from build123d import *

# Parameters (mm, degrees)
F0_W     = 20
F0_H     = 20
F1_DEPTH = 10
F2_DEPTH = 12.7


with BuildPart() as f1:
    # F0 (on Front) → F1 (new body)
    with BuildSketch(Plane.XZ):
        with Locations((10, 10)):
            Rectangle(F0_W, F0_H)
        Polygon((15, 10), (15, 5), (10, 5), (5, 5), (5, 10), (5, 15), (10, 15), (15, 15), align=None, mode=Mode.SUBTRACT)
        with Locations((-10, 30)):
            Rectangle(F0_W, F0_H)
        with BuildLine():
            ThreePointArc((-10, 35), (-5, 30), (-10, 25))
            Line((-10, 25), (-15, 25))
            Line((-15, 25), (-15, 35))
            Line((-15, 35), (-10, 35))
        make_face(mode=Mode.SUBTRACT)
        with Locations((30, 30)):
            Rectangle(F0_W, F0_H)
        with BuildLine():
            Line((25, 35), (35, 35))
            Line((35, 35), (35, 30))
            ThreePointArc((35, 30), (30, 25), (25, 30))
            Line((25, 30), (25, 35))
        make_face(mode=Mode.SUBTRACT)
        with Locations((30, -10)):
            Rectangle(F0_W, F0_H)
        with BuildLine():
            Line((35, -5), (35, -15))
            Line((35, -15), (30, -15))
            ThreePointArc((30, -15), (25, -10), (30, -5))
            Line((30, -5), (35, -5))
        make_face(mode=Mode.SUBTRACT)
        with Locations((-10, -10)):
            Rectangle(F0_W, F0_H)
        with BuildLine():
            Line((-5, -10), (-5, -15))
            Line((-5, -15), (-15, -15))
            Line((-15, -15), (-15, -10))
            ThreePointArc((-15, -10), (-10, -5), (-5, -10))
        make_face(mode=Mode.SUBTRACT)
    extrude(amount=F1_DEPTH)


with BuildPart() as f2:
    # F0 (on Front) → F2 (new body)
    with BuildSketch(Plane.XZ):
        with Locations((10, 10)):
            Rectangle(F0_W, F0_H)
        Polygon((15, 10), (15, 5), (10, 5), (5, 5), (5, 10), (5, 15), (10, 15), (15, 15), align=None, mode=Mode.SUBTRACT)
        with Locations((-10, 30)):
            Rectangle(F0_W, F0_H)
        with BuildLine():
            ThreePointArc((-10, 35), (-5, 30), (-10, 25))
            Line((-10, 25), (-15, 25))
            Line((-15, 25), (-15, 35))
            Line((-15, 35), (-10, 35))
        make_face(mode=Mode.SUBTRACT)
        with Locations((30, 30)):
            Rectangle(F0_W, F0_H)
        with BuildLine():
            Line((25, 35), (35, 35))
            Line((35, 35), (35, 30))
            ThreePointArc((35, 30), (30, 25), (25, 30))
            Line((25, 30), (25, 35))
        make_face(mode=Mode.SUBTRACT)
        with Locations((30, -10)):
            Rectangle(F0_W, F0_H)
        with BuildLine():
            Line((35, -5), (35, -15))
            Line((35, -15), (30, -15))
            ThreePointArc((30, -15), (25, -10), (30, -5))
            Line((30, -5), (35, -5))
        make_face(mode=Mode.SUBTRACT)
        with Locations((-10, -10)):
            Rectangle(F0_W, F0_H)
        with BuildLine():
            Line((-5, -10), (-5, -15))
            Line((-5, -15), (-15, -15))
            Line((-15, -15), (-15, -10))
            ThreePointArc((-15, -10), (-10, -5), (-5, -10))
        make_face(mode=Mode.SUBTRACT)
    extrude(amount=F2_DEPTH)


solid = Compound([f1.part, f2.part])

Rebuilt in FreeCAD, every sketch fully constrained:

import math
import FreeCAD as App
import Part
import Sketcher
Q = App.Units.Quantity

doc = App.newDocument("Part")
body = doc.addObject("PartDesign::Body", "Body")
body.AllowCompound = True

# Sketch on XZ plane
sketch1 = body.newObject("Sketcher::SketchObject", "Sketch")
sketch1.AttachmentSupport = (doc.getObject("XZ_Plane"), [""])
sketch1.MapMode = "FlatFace"
sketch1.addGeometry([
    Part.LineSegment(App.Vector(0, 20, 0), App.Vector(0, 0, 0)),  # 0
    Part.LineSegment(App.Vector(0, 0, 0), App.Vector(20, 0, 0)),  # 1
    Part.LineSegment(App.Vector(20, 0, 0), App.Vector(20, 20, 0)),  # 2
    Part.LineSegment(App.Vector(20, 20, 0), App.Vector(0, 20, 0)),  # 3
    Part.LineSegment(App.Vector(15, 15, 0), App.Vector(15, 5, 0)),  # 4
    Part.LineSegment(App.Vector(15, 5, 0), App.Vector(5, 5, 0)),  # 5
    Part.LineSegment(App.Vector(5, 5, 0), App.Vector(5, 15, 0)),  # 6
    Part.LineSegment(App.Vector(5, 15, 0), App.Vector(15, 15, 0)),  # 7
    Part.LineSegment(App.Vector(-20, 40, 0), App.Vector(-20, 20, 0)),  # 8
    Part.LineSegment(App.Vector(-20, 20, 0), App.Vector(0, 20, 0)),  # 9
    Part.LineSegment(App.Vector(0, 20, 0), App.Vector(0, 40, 0)),  # 10
    Part.LineSegment(App.Vector(0, 40, 0), App.Vector(-20, 40, 0)),  # 11
    Part.LineSegment(App.Vector(-15, 35, 0), App.Vector(-10, 35, 0)),  # 12
    Part.ArcOfCircle(Part.Circle(App.Vector(-10, 30, 0), App.Vector(0, 0, 1), 5), math.radians(-90), math.radians(90)),  # 13
    Part.LineSegment(App.Vector(-10, 25, 0), App.Vector(-15, 25, 0)),  # 14
    Part.LineSegment(App.Vector(-15, 25, 0), App.Vector(-15, 35, 0)),  # 15
    Part.LineSegment(App.Vector(20, 40, 0), App.Vector(20, 20, 0)),  # 16
    Part.LineSegment(App.Vector(20, 20, 0), App.Vector(40, 20, 0)),  # 17
    Part.LineSegment(App.Vector(40, 20, 0), App.Vector(40, 40, 0)),  # 18
    Part.LineSegment(App.Vector(40, 40, 0), App.Vector(20, 40, 0)),  # 19
    Part.LineSegment(App.Vector(25, 30, 0), App.Vector(25, 35, 0)),  # 20
    Part.LineSegment(App.Vector(25, 35, 0), App.Vector(35, 35, 0)),  # 21
    Part.LineSegment(App.Vector(35, 35, 0), App.Vector(35, 30, 0)),  # 22
    Part.ArcOfCircle(Part.Circle(App.Vector(30, 30, 0), App.Vector(0, 0, 1), 5), math.radians(180), math.radians(360)),  # 23
    Part.LineSegment(App.Vector(20, 0, 0), App.Vector(20, -20, 0)),  # 24
    Part.LineSegment(App.Vector(20, -20, 0), App.Vector(40, -20, 0)),  # 25
    Part.LineSegment(App.Vector(40, -20, 0), App.Vector(40, 0, 0)),  # 26
    Part.LineSegment(App.Vector(40, 0, 0), App.Vector(20, 0, 0)),  # 27
    Part.LineSegment(App.Vector(30, -5, 0), App.Vector(35, -5, 0)),  # 28
    Part.LineSegment(App.Vector(35, -5, 0), App.Vector(35, -15, 0)),  # 29
    Part.LineSegment(App.Vector(35, -15, 0), App.Vector(30, -15, 0)),  # 30
    Part.ArcOfCircle(Part.Circle(App.Vector(30, -10, 0), App.Vector(0, 0, 1), 5), math.radians(90), math.radians(270)),  # 31
    Part.LineSegment(App.Vector(-20, 0, 0), App.Vector(-20, -20, 0)),  # 32
    Part.LineSegment(App.Vector(-20, -20, 0), App.Vector(0, -20, 0)),  # 33
    Part.LineSegment(App.Vector(0, -20, 0), App.Vector(0, 0, 0)),  # 34
    Part.LineSegment(App.Vector(0, 0, 0), App.Vector(-20, 0, 0)),  # 35
    Part.ArcOfCircle(Part.Circle(App.Vector(-10, -10, 0), App.Vector(0, 0, 1), 5), math.radians(0), math.radians(180)),  # 36
    Part.LineSegment(App.Vector(-5, -10, 0), App.Vector(-5, -15, 0)),  # 37
    Part.LineSegment(App.Vector(-5, -15, 0), App.Vector(-15, -15, 0)),  # 38
    Part.LineSegment(App.Vector(-15, -15, 0), App.Vector(-15, -10, 0)),  # 39
], False)
sketch1.addConstraint([
    Sketcher.Constraint("Coincident", 0, 2, 1, 1),
    Sketcher.Constraint("Coincident", 1, 2, 2, 1),
    Sketcher.Constraint("Coincident", 2, 2, 3, 1),
    Sketcher.Constraint("Coincident", 3, 2, 0, 1),
    Sketcher.Constraint("Coincident", 4, 2, 5, 1),
    Sketcher.Constraint("Coincident", 5, 2, 6, 1),
    Sketcher.Constraint("Coincident", 6, 2, 7, 1),
    Sketcher.Constraint("Coincident", 7, 2, 4, 1),
    Sketcher.Constraint("Coincident", 8, 2, 9, 1),
    Sketcher.Constraint("Coincident", 9, 2, 10, 1),
    Sketcher.Constraint("Coincident", 10, 2, 11, 1),
    Sketcher.Constraint("Coincident", 11, 2, 8, 1),
    Sketcher.Constraint("Tangent", 12, 2, 13, 2),
    Sketcher.Constraint("Tangent", 13, 1, 14, 1),
    Sketcher.Constraint("Coincident", 14, 2, 15, 1),
    Sketcher.Constraint("Coincident", 15, 2, 12, 1),
    Sketcher.Constraint("Coincident", 16, 2, 17, 1),
    Sketcher.Constraint("Coincident", 17, 2, 18, 1),
    Sketcher.Constraint("Coincident", 18, 2, 19, 1),
    Sketcher.Constraint("Coincident", 19, 2, 16, 1),
    Sketcher.Constraint("Coincident", 20, 2, 21, 1),
    Sketcher.Constraint("Coincident", 21, 2, 22, 1),
    Sketcher.Constraint("Tangent", 22, 2, 23, 2),
    Sketcher.Constraint("Tangent", 23, 1, 20, 1),
    Sketcher.Constraint("Coincident", 24, 2, 25, 1),
    Sketcher.Constraint("Coincident", 25, 2, 26, 1),
    Sketcher.Constraint("Coincident", 26, 2, 27, 1),
    Sketcher.Constraint("Coincident", 27, 2, 24, 1),
    Sketcher.Constraint("Coincident", 28, 2, 29, 1),
    Sketcher.Constraint("Coincident", 29, 2, 30, 1),
    Sketcher.Constraint("Tangent", 30, 2, 31, 2),
    Sketcher.Constraint("Tangent", 31, 1, 28, 1),
    Sketcher.Constraint("Coincident", 32, 2, 33, 1),
    Sketcher.Constraint("Coincident", 33, 2, 34, 1),
    Sketcher.Constraint("Coincident", 34, 2, 35, 1),
    Sketcher.Constraint("Coincident", 35, 2, 32, 1),
    Sketcher.Constraint("Tangent", 36, 1, 37, 1),
    Sketcher.Constraint("Coincident", 37, 2, 38, 1),
    Sketcher.Constraint("Coincident", 38, 2, 39, 1),
    Sketcher.Constraint("Tangent", 39, 2, 36, 2),
    Sketcher.Constraint("Vertical", 0),
    Sketcher.Constraint("Horizontal", 1),
    Sketcher.Constraint("Vertical", 2),
    Sketcher.Constraint("Horizontal", 3),
    Sketcher.Constraint("Vertical", 4),
    Sketcher.Constraint("Horizontal", 5),
    Sketcher.Constraint("Vertical", 6),
    Sketcher.Constraint("Horizontal", 7),
    Sketcher.Constraint("Vertical", 8),
    Sketcher.Constraint("Horizontal", 9),
    Sketcher.Constraint("Vertical", 10),
    Sketcher.Constraint("Horizontal", 11),
    Sketcher.Constraint("Horizontal", 12),
    Sketcher.Constraint("Horizontal", 14),
    Sketcher.Constraint("Vertical", 15),
    Sketcher.Constraint("Vertical", 16),
    Sketcher.Constraint("Horizontal", 17),
    Sketcher.Constraint("Vertical", 18),
    Sketcher.Constraint("Horizontal", 19),
    Sketcher.Constraint("Vertical", 20),
    Sketcher.Constraint("Horizontal", 21),
    Sketcher.Constraint("Vertical", 22),
    Sketcher.Constraint("Vertical", 24),
    Sketcher.Constraint("Horizontal", 25),
    Sketcher.Constraint("Vertical", 26),
    Sketcher.Constraint("Horizontal", 27),
    Sketcher.Constraint("Horizontal", 28),
    Sketcher.Constraint("Vertical", 29),
    Sketcher.Constraint("Horizontal", 30),
    Sketcher.Constraint("Vertical", 32),
    Sketcher.Constraint("Horizontal", 33),
    Sketcher.Constraint("Vertical", 34),
    Sketcher.Constraint("Horizontal", 35),
    Sketcher.Constraint("Vertical", 37),
    Sketcher.Constraint("Horizontal", 38),
    Sketcher.Constraint("Vertical", 39),
    Sketcher.Constraint("Coincident", 0, 2, -1, 1),
    Sketcher.Constraint("Coincident", 34, 2, -1, 1),
    Sketcher.Constraint("Coincident", 9, 2, 3, 2),
    Sketcher.Constraint("Coincident", 16, 2, 2, 2),
    Sketcher.Constraint("Coincident", 27, 2, 1, 2),
    Sketcher.Constraint("Equal", 13, 23),
    Sketcher.Constraint("Equal", 23, 31),
    Sketcher.Constraint("Equal", 31, 36),
    Sketcher.Constraint("Symmetric", 8, 2, 24, 2, -1, 1),
    Sketcher.Constraint("Symmetric", 2, 2, 32, 2, -1, 1),
    Sketcher.Constraint("Symmetric", 6, 2, 37, 2, -1, 1),
    Sketcher.Constraint("Horizontal", 13, 3, 23, 3),
    Sketcher.Constraint("Horizontal", 31, 3, 36, 3),
    Sketcher.Constraint("Horizontal", 11, 2, 18, 2),
    Sketcher.Constraint("Horizontal", 15, 2, 20, 2),
    Sketcher.Constraint("Horizontal", 30, 2, 37, 2),
    Sketcher.Constraint("Vertical", 23, 3, 31, 3),
    Sketcher.Constraint("Vertical", 13, 3, 36, 3),
    Sketcher.Constraint("Vertical", 18, 2, 25, 2),
    Sketcher.Constraint("Vertical", 22, 2, 28, 2),
    Sketcher.Constraint("Vertical", 15, 2, 38, 2),
    Sketcher.Constraint("Equal", 11, 17),
    Sketcher.Constraint("Equal", 7, 21),
    Sketcher.Constraint("Equal", 35, 0),
    Sketcher.Constraint("Equal", 38, 4),
    Sketcher.Constraint("Equal", 2, 8),
    Sketcher.Constraint("Radius", 13, Q("5 mm")),
    Sketcher.Constraint("DistanceX", 1, 1, 1, 2, Q("20 mm")),
    Sketcher.Constraint("DistanceX", 13, 3, -1, 1, Q("10 mm")),
    Sketcher.Constraint("DistanceY", -1, 1, 13, 3, Q("30 mm")),
    Sketcher.Constraint("DistanceX", -1, 1, 23, 3, Q("30 mm")),
    Sketcher.Constraint("DistanceY", 31, 3, -1, 1, Q("10 mm")),
])
pad1 = body.newObject("PartDesign::Pad", "Pad")
pad1.Profile = sketch1
pad1.Length = 10
body2 = doc.addObject("PartDesign::Body", "Body001")
body2.AllowCompound = True

# Sketch on XZ plane
sketch2 = body2.newObject("Sketcher::SketchObject", "Sketch001")
sketch2.AttachmentSupport = (doc.getObject("XZ_Plane001"), [""])
sketch2.MapMode = "FlatFace"
sketch2.addGeometry([
    Part.LineSegment(App.Vector(0, 20, 0), App.Vector(0, 0, 0)),  # 0
    Part.LineSegment(App.Vector(0, 0, 0), App.Vector(20, 0, 0)),  # 1
    Part.LineSegment(App.Vector(20, 0, 0), App.Vector(20, 20, 0)),  # 2
    Part.LineSegment(App.Vector(20, 20, 0), App.Vector(0, 20, 0)),  # 3
    Part.LineSegment(App.Vector(15, 15, 0), App.Vector(15, 5, 0)),  # 4
    Part.LineSegment(App.Vector(15, 5, 0), App.Vector(5, 5, 0)),  # 5
    Part.LineSegment(App.Vector(5, 5, 0), App.Vector(5, 15, 0)),  # 6
    Part.LineSegment(App.Vector(5, 15, 0), App.Vector(15, 15, 0)),  # 7
    Part.LineSegment(App.Vector(-20, 40, 0), App.Vector(-20, 20, 0)),  # 8
    Part.LineSegment(App.Vector(-20, 20, 0), App.Vector(0, 20, 0)),  # 9
    Part.LineSegment(App.Vector(0, 20, 0), App.Vector(0, 40, 0)),  # 10
    Part.LineSegment(App.Vector(0, 40, 0), App.Vector(-20, 40, 0)),  # 11
    Part.LineSegment(App.Vector(-15, 35, 0), App.Vector(-10, 35, 0)),  # 12
    Part.ArcOfCircle(Part.Circle(App.Vector(-10, 30, 0), App.Vector(0, 0, 1), 5), math.radians(-90), math.radians(90)),  # 13
    Part.LineSegment(App.Vector(-10, 25, 0), App.Vector(-15, 25, 0)),  # 14
    Part.LineSegment(App.Vector(-15, 25, 0), App.Vector(-15, 35, 0)),  # 15
    Part.LineSegment(App.Vector(20, 40, 0), App.Vector(20, 20, 0)),  # 16
    Part.LineSegment(App.Vector(20, 20, 0), App.Vector(40, 20, 0)),  # 17
    Part.LineSegment(App.Vector(40, 20, 0), App.Vector(40, 40, 0)),  # 18
    Part.LineSegment(App.Vector(40, 40, 0), App.Vector(20, 40, 0)),  # 19
    Part.LineSegment(App.Vector(25, 30, 0), App.Vector(25, 35, 0)),  # 20
    Part.LineSegment(App.Vector(25, 35, 0), App.Vector(35, 35, 0)),  # 21
    Part.LineSegment(App.Vector(35, 35, 0), App.Vector(35, 30, 0)),  # 22
    Part.ArcOfCircle(Part.Circle(App.Vector(30, 30, 0), App.Vector(0, 0, 1), 5), math.radians(180), math.radians(360)),  # 23
    Part.LineSegment(App.Vector(20, 0, 0), App.Vector(20, -20, 0)),  # 24
    Part.LineSegment(App.Vector(20, -20, 0), App.Vector(40, -20, 0)),  # 25
    Part.LineSegment(App.Vector(40, -20, 0), App.Vector(40, 0, 0)),  # 26
    Part.LineSegment(App.Vector(40, 0, 0), App.Vector(20, 0, 0)),  # 27
    Part.LineSegment(App.Vector(30, -5, 0), App.Vector(35, -5, 0)),  # 28
    Part.LineSegment(App.Vector(35, -5, 0), App.Vector(35, -15, 0)),  # 29
    Part.LineSegment(App.Vector(35, -15, 0), App.Vector(30, -15, 0)),  # 30
    Part.ArcOfCircle(Part.Circle(App.Vector(30, -10, 0), App.Vector(0, 0, 1), 5), math.radians(90), math.radians(270)),  # 31
    Part.LineSegment(App.Vector(-20, 0, 0), App.Vector(-20, -20, 0)),  # 32
    Part.LineSegment(App.Vector(-20, -20, 0), App.Vector(0, -20, 0)),  # 33
    Part.LineSegment(App.Vector(0, -20, 0), App.Vector(0, 0, 0)),  # 34
    Part.LineSegment(App.Vector(0, 0, 0), App.Vector(-20, 0, 0)),  # 35
    Part.ArcOfCircle(Part.Circle(App.Vector(-10, -10, 0), App.Vector(0, 0, 1), 5), math.radians(0), math.radians(180)),  # 36
    Part.LineSegment(App.Vector(-5, -10, 0), App.Vector(-5, -15, 0)),  # 37
    Part.LineSegment(App.Vector(-5, -15, 0), App.Vector(-15, -15, 0)),  # 38
    Part.LineSegment(App.Vector(-15, -15, 0), App.Vector(-15, -10, 0)),  # 39
], False)
sketch2.addConstraint([
    Sketcher.Constraint("Coincident", 0, 2, 1, 1),
    Sketcher.Constraint("Coincident", 1, 2, 2, 1),
    Sketcher.Constraint("Coincident", 2, 2, 3, 1),
    Sketcher.Constraint("Coincident", 3, 2, 0, 1),
    Sketcher.Constraint("Coincident", 4, 2, 5, 1),
    Sketcher.Constraint("Coincident", 5, 2, 6, 1),
    Sketcher.Constraint("Coincident", 6, 2, 7, 1),
    Sketcher.Constraint("Coincident", 7, 2, 4, 1),
    Sketcher.Constraint("Coincident", 8, 2, 9, 1),
    Sketcher.Constraint("Coincident", 9, 2, 10, 1),
    Sketcher.Constraint("Coincident", 10, 2, 11, 1),
    Sketcher.Constraint("Coincident", 11, 2, 8, 1),
    Sketcher.Constraint("Tangent", 12, 2, 13, 2),
    Sketcher.Constraint("Tangent", 13, 1, 14, 1),
    Sketcher.Constraint("Coincident", 14, 2, 15, 1),
    Sketcher.Constraint("Coincident", 15, 2, 12, 1),
    Sketcher.Constraint("Coincident", 16, 2, 17, 1),
    Sketcher.Constraint("Coincident", 17, 2, 18, 1),
    Sketcher.Constraint("Coincident", 18, 2, 19, 1),
    Sketcher.Constraint("Coincident", 19, 2, 16, 1),
    Sketcher.Constraint("Coincident", 20, 2, 21, 1),
    Sketcher.Constraint("Coincident", 21, 2, 22, 1),
    Sketcher.Constraint("Tangent", 22, 2, 23, 2),
    Sketcher.Constraint("Tangent", 23, 1, 20, 1),
    Sketcher.Constraint("Coincident", 24, 2, 25, 1),
    Sketcher.Constraint("Coincident", 25, 2, 26, 1),
    Sketcher.Constraint("Coincident", 26, 2, 27, 1),
    Sketcher.Constraint("Coincident", 27, 2, 24, 1),
    Sketcher.Constraint("Coincident", 28, 2, 29, 1),
    Sketcher.Constraint("Coincident", 29, 2, 30, 1),
    Sketcher.Constraint("Tangent", 30, 2, 31, 2),
    Sketcher.Constraint("Tangent", 31, 1, 28, 1),
    Sketcher.Constraint("Coincident", 32, 2, 33, 1),
    Sketcher.Constraint("Coincident", 33, 2, 34, 1),
    Sketcher.Constraint("Coincident", 34, 2, 35, 1),
    Sketcher.Constraint("Coincident", 35, 2, 32, 1),
    Sketcher.Constraint("Tangent", 36, 1, 37, 1),
    Sketcher.Constraint("Coincident", 37, 2, 38, 1),
    Sketcher.Constraint("Coincident", 38, 2, 39, 1),
    Sketcher.Constraint("Tangent", 39, 2, 36, 2),
    Sketcher.Constraint("Vertical", 0),
    Sketcher.Constraint("Horizontal", 1),
    Sketcher.Constraint("Vertical", 2),
    Sketcher.Constraint("Horizontal", 3),
    Sketcher.Constraint("Vertical", 4),
    Sketcher.Constraint("Horizontal", 5),
    Sketcher.Constraint("Vertical", 6),
    Sketcher.Constraint("Horizontal", 7),
    Sketcher.Constraint("Vertical", 8),
    Sketcher.Constraint("Horizontal", 9),
    Sketcher.Constraint("Vertical", 10),
    Sketcher.Constraint("Horizontal", 11),
    Sketcher.Constraint("Horizontal", 12),
    Sketcher.Constraint("Horizontal", 14),
    Sketcher.Constraint("Vertical", 15),
    Sketcher.Constraint("Vertical", 16),
    Sketcher.Constraint("Horizontal", 17),
    Sketcher.Constraint("Vertical", 18),
    Sketcher.Constraint("Horizontal", 19),
    Sketcher.Constraint("Vertical", 20),
    Sketcher.Constraint("Horizontal", 21),
    Sketcher.Constraint("Vertical", 22),
    Sketcher.Constraint("Vertical", 24),
    Sketcher.Constraint("Horizontal", 25),
    Sketcher.Constraint("Vertical", 26),
    Sketcher.Constraint("Horizontal", 27),
    Sketcher.Constraint("Horizontal", 28),
    Sketcher.Constraint("Vertical", 29),
    Sketcher.Constraint("Horizontal", 30),
    Sketcher.Constraint("Vertical", 32),
    Sketcher.Constraint("Horizontal", 33),
    Sketcher.Constraint("Vertical", 34),
    Sketcher.Constraint("Horizontal", 35),
    Sketcher.Constraint("Vertical", 37),
    Sketcher.Constraint("Horizontal", 38),
    Sketcher.Constraint("Vertical", 39),
    Sketcher.Constraint("Coincident", 0, 2, -1, 1),
    Sketcher.Constraint("Coincident", 34, 2, -1, 1),
    Sketcher.Constraint("Coincident", 9, 2, 3, 2),
    Sketcher.Constraint("Coincident", 16, 2, 2, 2),
    Sketcher.Constraint("Coincident", 27, 2, 1, 2),
    Sketcher.Constraint("Equal", 13, 23),
    Sketcher.Constraint("Equal", 23, 31),
    Sketcher.Constraint("Equal", 31, 36),
    Sketcher.Constraint("Symmetric", 8, 2, 24, 2, -1, 1),
    Sketcher.Constraint("Symmetric", 2, 2, 32, 2, -1, 1),
    Sketcher.Constraint("Symmetric", 6, 2, 37, 2, -1, 1),
    Sketcher.Constraint("Horizontal", 13, 3, 23, 3),
    Sketcher.Constraint("Horizontal", 31, 3, 36, 3),
    Sketcher.Constraint("Horizontal", 11, 2, 18, 2),
    Sketcher.Constraint("Horizontal", 15, 2, 20, 2),
    Sketcher.Constraint("Horizontal", 30, 2, 37, 2),
    Sketcher.Constraint("Vertical", 23, 3, 31, 3),
    Sketcher.Constraint("Vertical", 13, 3, 36, 3),
    Sketcher.Constraint("Vertical", 18, 2, 25, 2),
    Sketcher.Constraint("Vertical", 22, 2, 28, 2),
    Sketcher.Constraint("Vertical", 15, 2, 38, 2),
    Sketcher.Constraint("Equal", 11, 17),
    Sketcher.Constraint("Equal", 7, 21),
    Sketcher.Constraint("Equal", 35, 0),
    Sketcher.Constraint("Equal", 38, 4),
    Sketcher.Constraint("Equal", 2, 8),
    Sketcher.Constraint("Radius", 13, Q("5 mm")),
    Sketcher.Constraint("DistanceX", 1, 1, 1, 2, Q("20 mm")),
    Sketcher.Constraint("DistanceX", 13, 3, -1, 1, Q("10 mm")),
    Sketcher.Constraint("DistanceY", -1, 1, 13, 3, Q("30 mm")),
    Sketcher.Constraint("DistanceX", -1, 1, 23, 3, Q("30 mm")),
    Sketcher.Constraint("DistanceY", 31, 3, -1, 1, Q("10 mm")),
])
pad2 = body2.newObject("PartDesign::Pad", "Pad001")
pad2.Profile = sketch2
pad2.Length = 12.7

doc.recompute()
